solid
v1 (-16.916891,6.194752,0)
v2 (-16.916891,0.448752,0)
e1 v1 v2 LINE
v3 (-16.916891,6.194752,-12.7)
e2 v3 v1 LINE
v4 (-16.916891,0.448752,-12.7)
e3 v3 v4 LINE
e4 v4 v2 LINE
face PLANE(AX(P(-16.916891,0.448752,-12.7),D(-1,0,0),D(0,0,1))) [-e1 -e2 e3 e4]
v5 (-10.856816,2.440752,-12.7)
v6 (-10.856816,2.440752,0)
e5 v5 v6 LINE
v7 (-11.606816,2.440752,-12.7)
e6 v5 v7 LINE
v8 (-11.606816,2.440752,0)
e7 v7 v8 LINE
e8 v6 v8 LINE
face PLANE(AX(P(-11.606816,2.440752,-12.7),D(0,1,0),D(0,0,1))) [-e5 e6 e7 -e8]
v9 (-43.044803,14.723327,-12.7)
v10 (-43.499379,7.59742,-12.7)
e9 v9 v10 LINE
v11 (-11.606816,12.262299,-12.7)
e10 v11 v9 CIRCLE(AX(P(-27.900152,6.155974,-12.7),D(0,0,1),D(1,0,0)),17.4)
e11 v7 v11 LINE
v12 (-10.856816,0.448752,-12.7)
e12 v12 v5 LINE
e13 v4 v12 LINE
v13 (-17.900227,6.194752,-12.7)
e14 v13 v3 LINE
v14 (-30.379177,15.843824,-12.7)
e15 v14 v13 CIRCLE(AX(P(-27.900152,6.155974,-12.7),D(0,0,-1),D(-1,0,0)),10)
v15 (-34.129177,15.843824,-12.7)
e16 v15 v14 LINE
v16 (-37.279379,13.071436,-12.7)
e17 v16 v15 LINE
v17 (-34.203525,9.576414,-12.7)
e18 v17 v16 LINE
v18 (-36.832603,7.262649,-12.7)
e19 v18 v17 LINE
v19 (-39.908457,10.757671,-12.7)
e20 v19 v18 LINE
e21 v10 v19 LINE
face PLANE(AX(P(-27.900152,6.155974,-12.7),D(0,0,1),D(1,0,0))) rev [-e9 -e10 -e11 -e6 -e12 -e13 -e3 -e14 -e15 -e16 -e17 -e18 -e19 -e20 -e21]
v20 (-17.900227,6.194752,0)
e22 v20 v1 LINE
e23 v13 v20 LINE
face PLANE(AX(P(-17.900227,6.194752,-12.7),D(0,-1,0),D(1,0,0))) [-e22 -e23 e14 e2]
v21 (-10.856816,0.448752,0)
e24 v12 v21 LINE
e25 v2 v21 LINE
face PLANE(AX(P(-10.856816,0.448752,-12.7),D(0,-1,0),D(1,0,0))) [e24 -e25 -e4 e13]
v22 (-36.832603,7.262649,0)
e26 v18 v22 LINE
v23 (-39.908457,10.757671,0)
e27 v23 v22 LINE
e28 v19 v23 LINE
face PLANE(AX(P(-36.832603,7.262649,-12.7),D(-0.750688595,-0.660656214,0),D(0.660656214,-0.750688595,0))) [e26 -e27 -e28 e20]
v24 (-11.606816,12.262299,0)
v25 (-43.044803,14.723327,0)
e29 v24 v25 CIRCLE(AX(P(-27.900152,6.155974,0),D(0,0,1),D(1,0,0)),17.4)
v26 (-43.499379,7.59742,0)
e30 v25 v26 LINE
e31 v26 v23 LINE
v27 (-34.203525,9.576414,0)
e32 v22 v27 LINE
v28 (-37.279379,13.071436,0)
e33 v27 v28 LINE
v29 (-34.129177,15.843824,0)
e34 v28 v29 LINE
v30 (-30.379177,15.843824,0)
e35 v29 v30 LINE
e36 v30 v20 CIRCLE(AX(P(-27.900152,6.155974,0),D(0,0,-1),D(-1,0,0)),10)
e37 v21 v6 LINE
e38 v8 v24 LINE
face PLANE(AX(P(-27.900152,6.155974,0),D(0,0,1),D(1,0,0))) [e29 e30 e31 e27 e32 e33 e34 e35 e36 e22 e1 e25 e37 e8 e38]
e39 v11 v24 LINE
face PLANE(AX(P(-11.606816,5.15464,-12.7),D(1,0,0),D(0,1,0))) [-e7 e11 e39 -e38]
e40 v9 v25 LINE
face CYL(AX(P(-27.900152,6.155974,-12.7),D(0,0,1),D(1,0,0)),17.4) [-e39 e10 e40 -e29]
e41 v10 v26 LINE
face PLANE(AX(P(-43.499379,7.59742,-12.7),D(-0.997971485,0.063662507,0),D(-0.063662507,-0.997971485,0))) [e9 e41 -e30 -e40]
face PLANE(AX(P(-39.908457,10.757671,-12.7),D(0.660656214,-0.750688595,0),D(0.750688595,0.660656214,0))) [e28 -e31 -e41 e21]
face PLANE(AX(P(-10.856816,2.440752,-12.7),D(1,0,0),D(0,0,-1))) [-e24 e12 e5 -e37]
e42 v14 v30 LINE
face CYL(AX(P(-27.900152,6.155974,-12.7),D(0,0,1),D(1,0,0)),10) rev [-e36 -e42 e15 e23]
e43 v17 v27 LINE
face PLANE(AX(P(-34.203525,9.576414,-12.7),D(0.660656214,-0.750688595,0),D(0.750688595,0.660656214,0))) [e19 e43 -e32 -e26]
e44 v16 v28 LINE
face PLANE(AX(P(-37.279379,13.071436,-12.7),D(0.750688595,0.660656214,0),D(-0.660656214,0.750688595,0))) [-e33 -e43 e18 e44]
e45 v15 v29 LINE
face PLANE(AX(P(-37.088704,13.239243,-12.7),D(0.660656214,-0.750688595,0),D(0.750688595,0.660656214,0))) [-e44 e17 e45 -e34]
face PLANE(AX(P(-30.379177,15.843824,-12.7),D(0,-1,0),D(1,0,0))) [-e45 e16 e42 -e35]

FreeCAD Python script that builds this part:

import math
import FreeCAD as App
import Part
import Sketcher
from FreeCAD import Vector
Q = App.Units.Quantity

doc = App.newDocument("Part")
params = doc.addObject("Spreadsheet::Sheet", "Params")
for row, (alias, value) in enumerate([
    ("sketch1_radius", "10 mm"),
    ("sketch1_radius2", "17.4 mm"),
    ("sketch1_width", "3.75 mm"),
    ("sketch1_width2", "0.75 mm"),
    ("pad1_length", "12.7 mm"),
], start=1):
    params.set(f"A{row}", alias)
    params.set(f"B{row}", "=" + value)
    params.setAlias(f"B{row}", alias)

body = doc.addObject("PartDesign::Body", "Body")

# Sketch on XY plane
sketch1 = doc.addObject("Sketcher::SketchObject", "Sketch")
body.addObject(sketch1)
sketch1.AttachmentSupport = (doc.XY_Plane, [""])
sketch1.MapMode = "FlatFace"
sketch1.addGeometry(Part.LineSegment(Vector(-40.1, 10.59, 0), Vector(-39.91, 10.76, 0)), False)
sketch1.addGeometry(Part.LineSegment(Vector(-39.91, 10.76, 0), Vector(-36.83, 7.26, 0)), False)
sketch1.addGeometry(Part.LineSegment(Vector(-36.83, 7.26, 0), Vector(-34.2, 9.58, 0)), False)
sketch1.addGeometry(Part.LineSegment(Vector(-34.2, 9.58, 0), Vector(-37.28, 13.07, 0)), False)
sketch1.addGeometry(Part.LineSegment(Vector(-37.28, 13.07, 0), Vector(-37.09, 13.24, 0)), False)
sketch1.addGeometry(Part.LineSegment(Vector(-37.09, 13.24, 0), Vector(-34.13, 15.84, 0)), False)
sketch1.addGeometry(Part.LineSegment(Vector(-34.13, 15.84, 0), Vector(-30.38, 15.84, 0)), False)
sketch1.addGeometry(Part.ArcOfCircle(Part.Circle(Vector(-27.9, 6.16, 0), Vector(0, 0, 1), 10), math.radians(0), math.radians(104)), False)
sketch1.addGeometry(Part.LineSegment(Vector(-17.9, 6.19, 0), Vector(-16.92, 6.19, 0)), False)
sketch1.addGeometry(Part.LineSegment(Vector(-16.92, 6.19, 0), Vector(-16.92, 0.45, 0)), False)
sketch1.addGeometry(Part.LineSegment(Vector(-16.92, 0.45, 0), Vector(-10.86, 0.45, 0)), False)
sketch1.addGeometry(Part.LineSegment(Vector(-10.86, 0.45, 0), Vector(-10.86, 2.44, 0)), False)
sketch1.addGeometry(Part.LineSegment(Vector(-10.86, 2.44, 0), Vector(-11.61, 2.44, 0)), False)
sketch1.addGeometry(Part.LineSegment(Vector(-11.61, 2.44, 0), Vector(-11.61, 12.26, 0)), False)
sketch1.addGeometry(Part.ArcOfCircle(Part.Circle(Vector(-27.9, 6.16, 0), Vector(0, 0, 1), 17.4), math.radians(21), math.radians(151)), False)
sketch1.addGeometry(Part.LineSegment(Vector(-43.04, 14.72, 0), Vector(-43.5, 7.6, 0)), False)
sketch1.addGeometry(Part.LineSegment(Vector(-43.5, 7.6, 0), Vector(-40.1, 10.59, 0)), False)
sketch1.addConstraint(Sketcher.Constraint("Coincident", 0, 2, 1, 1))
sketch1.addConstraint(Sketcher.Constraint("Coincident", 1, 2, 2, 1))
sketch1.addConstraint(Sketcher.Constraint("Coincident", 2, 2, 3, 1))
sketch1.addConstraint(Sketcher.Constraint("Coincident", 3, 2, 4, 1))
sketch1.addConstraint(Sketcher.Constraint("Coincident", 4, 2, 5, 1))
sketch1.addConstraint(Sketcher.Constraint("Coincident", 5, 2, 6, 1))
sketch1.addConstraint(Sketcher.Constraint("Coincident", 6, 2, 7, 2))
sketch1.addConstraint(Sketcher.Constraint("Coincident", 7, 1, 8, 1))
sketch1.addConstraint(Sketcher.Constraint("Coincident", 8, 2, 9, 1))
sketch1.addConstraint(Sketcher.Constraint("Coincident", 9, 2, 10, 1))
sketch1.addConstraint(Sketcher.Constraint("Coincident", 10, 2, 11, 1))
sketch1.addConstraint(Sketcher.Constraint("Coincident", 11, 2, 12, 1))
sketch1.addConstraint(Sketcher.Constraint("Coincident", 12, 2, 13, 1))
sketch1.addConstraint(Sketcher.Constraint("Coincident", 13, 2, 14, 1))
sketch1.addConstraint(Sketcher.Constraint("Coincident", 14, 2, 15, 1))
sketch1.addConstraint(Sketcher.Constraint("Coincident", 15, 2, 16, 1))
sketch1.addConstraint(Sketcher.Constraint("Coincident", 16, 2, 0, 1))
sketch1.addConstraint(Sketcher.Constraint("Horizontal", 6))
sketch1.addConstraint(Sketcher.Constraint("Horizontal", 8))
sketch1.addConstraint(Sketcher.Constraint("Vertical", 9))
sketch1.addConstraint(Sketcher.Constraint("Horizontal", 10))
sketch1.addConstraint(Sketcher.Constraint("Vertical", 11))
sketch1.addConstraint(Sketcher.Constraint("Horizontal", 12))
sketch1.addConstraint(Sketcher.Constraint("Vertical", 13))
sketch1.addConstraint(Sketcher.Constraint("Coincident", 14, 3, 7, 3))
sketch1.addConstraint(Sketcher.Constraint("Perpendicular", 0, 1))
sketch1.addConstraint(Sketcher.Constraint("Perpendicular", 1, 2))
sketch1.addConstraint(Sketcher.Constraint("Perpendicular", 2, 3))
sketch1.addConstraint(Sketcher.Constraint("Perpendicular", 3, 4))
sketch1.addConstraint(Sketcher.Constraint("Parallel", 4, 5))
sketch1.addConstraint(Sketcher.Constraint("Parallel", 5, 16))
sketch1.addConstraint(Sketcher.Constraint("Equal", 1, 3))
sketch1.addConstraint(Sketcher.Constraint("Equal", 0, 4))
sketch1.addConstraint(Sketcher.Constraint("Radius", 7, Q("10 mm")))
sketch1.addConstraint(Sketcher.Constraint("Radius", 14, Q("17.4 mm")))
sketch1.addConstraint(Sketcher.Constraint("DistanceX", 6, 1, 6, 2, Q("3.75 mm")))
sketch1.addConstraint(Sketcher.Constraint("DistanceX", 12, 2, 12, 1, Q("0.75 mm")))
sketch1.addConstraint(Sketcher.Constraint("DistanceY", 9, 2, 9, 1, Q("5.746 mm")))
sketch1.addConstraint(Sketcher.Constraint("DistanceY", 11, 1, 11, 2, Q("1.992 mm")))
sketch1.addConstraint(Sketcher.Constraint("DistanceX", 15, 2, 3, 2, Q("6.22 mm")))
sketch1.addConstraint(Sketcher.Constraint("Distance", 0, Q("0.254 mm")))
sketch1.addConstraint(Sketcher.Constraint("DistanceY", -1, 1, 13, 2, Q("12.262299 mm")))
sketch1.addConstraint(Sketcher.Constraint("DistanceX", 4, 2, 1, 2, Q("0.256101 mm")))
sketch1.addConstraint(Sketcher.Constraint("DistanceX", 3, 2, 5, 2, Q("3.150202 mm")))
sketch1.addConstraint(Sketcher.Constraint("DistanceX", 2, 2, 7, 1, Q("16.303298 mm")))
sketch1.addConstraint(Sketcher.Constraint("DistanceX", 14, 2, 4, 2, Q("5.9561 mm")))
sketch1.addConstraint(Sketcher.Constraint("Distance", 2, Q("3.502222 mm")))
sketch1.addConstraint(Sketcher.Constraint("Distance", 15, Q("7.140392 mm")))
sketch1.addConstraint(Sketcher.Constraint("DistanceX", 8, 1, 8, 2, Q("0.983336 mm")))
sketch1.addConstraint(Sketcher.Constraint("DistanceX", 10, 1, 10, 2, Q("6.060075 mm")))
sketch1.addConstraint(Sketcher.Constraint("DistanceY", 13, 1, 13, 2, Q("9.821547 mm")))
sketch1.addConstraint(Sketcher.Constraint("DistanceX", 7, 3, -1, 1, Q("27.900152 mm")))
sketch1.setExpression("Constraints[33]", "Params.sketch1_radius")
sketch1.setExpression("Constraints[34]", "Params.sketch1_radius2")
sketch1.setExpression("Constraints[35]", "Params.sketch1_width")
sketch1.setExpression("Constraints[36]", "Params.sketch1_width2")
pad1 = doc.addObject("PartDesign::Pad", "Pad")
body.addObject(pad1)
pad1.Profile = sketch1
pad1.setExpression("Length", "Params.pad1_length")
pad1.Reversed = True

doc.recompute()
